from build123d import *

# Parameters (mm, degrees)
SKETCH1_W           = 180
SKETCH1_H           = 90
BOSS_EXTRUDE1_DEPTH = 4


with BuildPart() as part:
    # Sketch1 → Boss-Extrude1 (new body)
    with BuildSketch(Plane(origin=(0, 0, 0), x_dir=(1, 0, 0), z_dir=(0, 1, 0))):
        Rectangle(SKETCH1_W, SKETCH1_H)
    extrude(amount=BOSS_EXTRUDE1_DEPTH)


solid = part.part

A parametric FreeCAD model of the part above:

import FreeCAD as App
import Part
import Sketcher
from FreeCAD import Vector
Q = App.Units.Quantity

doc = App.newDocument("Part")
body = doc.addObject("PartDesign::Body", "Body")

sketch1 = body.newObject("Sketcher::SketchObject", "Sketch")
sketch1.AttachmentSupport = (doc.getObject("XZ_Plane"), [""])
sketch1.MapMode = "FlatFace"
sketch1.addGeometry([
    Part.LineSegment(Vector(-90, -45, 0), Vector(-90, 45, 0)),
    Part.LineSegment(Vector(-90, 45, 0), Vector(90, 45, 0)),
    Part.LineSegment(Vector(90, 45, 0), Vector(90, -45, 0)),
    Part.LineSegment(Vector(90, -45, 0), Vector(-90, -45, 0)),
], False)
sketch1.addConstraint([
    Sketcher.Constraint("Coincident", 0, 2, 1, 1),
    Sketcher.Constraint("Coincident", 1, 2, 2, 1),
    Sketcher.Constraint("Coincident", 2, 2, 3, 1),
    Sketcher.Constraint("Coincident", 3, 2, 0, 1),
    Sketcher.Constraint("Vertical", 0),
    Sketcher.Constraint("Horizontal", 1),
    Sketcher.Constraint("Vertical", 2),
    Sketcher.Constraint("Horizontal", 3),
    Sketcher.Constraint("Symmetric", 0, 2, 2, 2, -1, 1),
    Sketcher.Constraint("DistanceX", 1, 1, 1, 2, Q("180 mm")),
    Sketcher.Constraint("DistanceY", 0, 1, 0, 2, Q("90 mm")),
])
pad1 = body.newObject("PartDesign::Pad", "Pad")
pad1.Profile = sketch1
pad1.Length = 4
pad1.Reversed = True

doc.recompute()
